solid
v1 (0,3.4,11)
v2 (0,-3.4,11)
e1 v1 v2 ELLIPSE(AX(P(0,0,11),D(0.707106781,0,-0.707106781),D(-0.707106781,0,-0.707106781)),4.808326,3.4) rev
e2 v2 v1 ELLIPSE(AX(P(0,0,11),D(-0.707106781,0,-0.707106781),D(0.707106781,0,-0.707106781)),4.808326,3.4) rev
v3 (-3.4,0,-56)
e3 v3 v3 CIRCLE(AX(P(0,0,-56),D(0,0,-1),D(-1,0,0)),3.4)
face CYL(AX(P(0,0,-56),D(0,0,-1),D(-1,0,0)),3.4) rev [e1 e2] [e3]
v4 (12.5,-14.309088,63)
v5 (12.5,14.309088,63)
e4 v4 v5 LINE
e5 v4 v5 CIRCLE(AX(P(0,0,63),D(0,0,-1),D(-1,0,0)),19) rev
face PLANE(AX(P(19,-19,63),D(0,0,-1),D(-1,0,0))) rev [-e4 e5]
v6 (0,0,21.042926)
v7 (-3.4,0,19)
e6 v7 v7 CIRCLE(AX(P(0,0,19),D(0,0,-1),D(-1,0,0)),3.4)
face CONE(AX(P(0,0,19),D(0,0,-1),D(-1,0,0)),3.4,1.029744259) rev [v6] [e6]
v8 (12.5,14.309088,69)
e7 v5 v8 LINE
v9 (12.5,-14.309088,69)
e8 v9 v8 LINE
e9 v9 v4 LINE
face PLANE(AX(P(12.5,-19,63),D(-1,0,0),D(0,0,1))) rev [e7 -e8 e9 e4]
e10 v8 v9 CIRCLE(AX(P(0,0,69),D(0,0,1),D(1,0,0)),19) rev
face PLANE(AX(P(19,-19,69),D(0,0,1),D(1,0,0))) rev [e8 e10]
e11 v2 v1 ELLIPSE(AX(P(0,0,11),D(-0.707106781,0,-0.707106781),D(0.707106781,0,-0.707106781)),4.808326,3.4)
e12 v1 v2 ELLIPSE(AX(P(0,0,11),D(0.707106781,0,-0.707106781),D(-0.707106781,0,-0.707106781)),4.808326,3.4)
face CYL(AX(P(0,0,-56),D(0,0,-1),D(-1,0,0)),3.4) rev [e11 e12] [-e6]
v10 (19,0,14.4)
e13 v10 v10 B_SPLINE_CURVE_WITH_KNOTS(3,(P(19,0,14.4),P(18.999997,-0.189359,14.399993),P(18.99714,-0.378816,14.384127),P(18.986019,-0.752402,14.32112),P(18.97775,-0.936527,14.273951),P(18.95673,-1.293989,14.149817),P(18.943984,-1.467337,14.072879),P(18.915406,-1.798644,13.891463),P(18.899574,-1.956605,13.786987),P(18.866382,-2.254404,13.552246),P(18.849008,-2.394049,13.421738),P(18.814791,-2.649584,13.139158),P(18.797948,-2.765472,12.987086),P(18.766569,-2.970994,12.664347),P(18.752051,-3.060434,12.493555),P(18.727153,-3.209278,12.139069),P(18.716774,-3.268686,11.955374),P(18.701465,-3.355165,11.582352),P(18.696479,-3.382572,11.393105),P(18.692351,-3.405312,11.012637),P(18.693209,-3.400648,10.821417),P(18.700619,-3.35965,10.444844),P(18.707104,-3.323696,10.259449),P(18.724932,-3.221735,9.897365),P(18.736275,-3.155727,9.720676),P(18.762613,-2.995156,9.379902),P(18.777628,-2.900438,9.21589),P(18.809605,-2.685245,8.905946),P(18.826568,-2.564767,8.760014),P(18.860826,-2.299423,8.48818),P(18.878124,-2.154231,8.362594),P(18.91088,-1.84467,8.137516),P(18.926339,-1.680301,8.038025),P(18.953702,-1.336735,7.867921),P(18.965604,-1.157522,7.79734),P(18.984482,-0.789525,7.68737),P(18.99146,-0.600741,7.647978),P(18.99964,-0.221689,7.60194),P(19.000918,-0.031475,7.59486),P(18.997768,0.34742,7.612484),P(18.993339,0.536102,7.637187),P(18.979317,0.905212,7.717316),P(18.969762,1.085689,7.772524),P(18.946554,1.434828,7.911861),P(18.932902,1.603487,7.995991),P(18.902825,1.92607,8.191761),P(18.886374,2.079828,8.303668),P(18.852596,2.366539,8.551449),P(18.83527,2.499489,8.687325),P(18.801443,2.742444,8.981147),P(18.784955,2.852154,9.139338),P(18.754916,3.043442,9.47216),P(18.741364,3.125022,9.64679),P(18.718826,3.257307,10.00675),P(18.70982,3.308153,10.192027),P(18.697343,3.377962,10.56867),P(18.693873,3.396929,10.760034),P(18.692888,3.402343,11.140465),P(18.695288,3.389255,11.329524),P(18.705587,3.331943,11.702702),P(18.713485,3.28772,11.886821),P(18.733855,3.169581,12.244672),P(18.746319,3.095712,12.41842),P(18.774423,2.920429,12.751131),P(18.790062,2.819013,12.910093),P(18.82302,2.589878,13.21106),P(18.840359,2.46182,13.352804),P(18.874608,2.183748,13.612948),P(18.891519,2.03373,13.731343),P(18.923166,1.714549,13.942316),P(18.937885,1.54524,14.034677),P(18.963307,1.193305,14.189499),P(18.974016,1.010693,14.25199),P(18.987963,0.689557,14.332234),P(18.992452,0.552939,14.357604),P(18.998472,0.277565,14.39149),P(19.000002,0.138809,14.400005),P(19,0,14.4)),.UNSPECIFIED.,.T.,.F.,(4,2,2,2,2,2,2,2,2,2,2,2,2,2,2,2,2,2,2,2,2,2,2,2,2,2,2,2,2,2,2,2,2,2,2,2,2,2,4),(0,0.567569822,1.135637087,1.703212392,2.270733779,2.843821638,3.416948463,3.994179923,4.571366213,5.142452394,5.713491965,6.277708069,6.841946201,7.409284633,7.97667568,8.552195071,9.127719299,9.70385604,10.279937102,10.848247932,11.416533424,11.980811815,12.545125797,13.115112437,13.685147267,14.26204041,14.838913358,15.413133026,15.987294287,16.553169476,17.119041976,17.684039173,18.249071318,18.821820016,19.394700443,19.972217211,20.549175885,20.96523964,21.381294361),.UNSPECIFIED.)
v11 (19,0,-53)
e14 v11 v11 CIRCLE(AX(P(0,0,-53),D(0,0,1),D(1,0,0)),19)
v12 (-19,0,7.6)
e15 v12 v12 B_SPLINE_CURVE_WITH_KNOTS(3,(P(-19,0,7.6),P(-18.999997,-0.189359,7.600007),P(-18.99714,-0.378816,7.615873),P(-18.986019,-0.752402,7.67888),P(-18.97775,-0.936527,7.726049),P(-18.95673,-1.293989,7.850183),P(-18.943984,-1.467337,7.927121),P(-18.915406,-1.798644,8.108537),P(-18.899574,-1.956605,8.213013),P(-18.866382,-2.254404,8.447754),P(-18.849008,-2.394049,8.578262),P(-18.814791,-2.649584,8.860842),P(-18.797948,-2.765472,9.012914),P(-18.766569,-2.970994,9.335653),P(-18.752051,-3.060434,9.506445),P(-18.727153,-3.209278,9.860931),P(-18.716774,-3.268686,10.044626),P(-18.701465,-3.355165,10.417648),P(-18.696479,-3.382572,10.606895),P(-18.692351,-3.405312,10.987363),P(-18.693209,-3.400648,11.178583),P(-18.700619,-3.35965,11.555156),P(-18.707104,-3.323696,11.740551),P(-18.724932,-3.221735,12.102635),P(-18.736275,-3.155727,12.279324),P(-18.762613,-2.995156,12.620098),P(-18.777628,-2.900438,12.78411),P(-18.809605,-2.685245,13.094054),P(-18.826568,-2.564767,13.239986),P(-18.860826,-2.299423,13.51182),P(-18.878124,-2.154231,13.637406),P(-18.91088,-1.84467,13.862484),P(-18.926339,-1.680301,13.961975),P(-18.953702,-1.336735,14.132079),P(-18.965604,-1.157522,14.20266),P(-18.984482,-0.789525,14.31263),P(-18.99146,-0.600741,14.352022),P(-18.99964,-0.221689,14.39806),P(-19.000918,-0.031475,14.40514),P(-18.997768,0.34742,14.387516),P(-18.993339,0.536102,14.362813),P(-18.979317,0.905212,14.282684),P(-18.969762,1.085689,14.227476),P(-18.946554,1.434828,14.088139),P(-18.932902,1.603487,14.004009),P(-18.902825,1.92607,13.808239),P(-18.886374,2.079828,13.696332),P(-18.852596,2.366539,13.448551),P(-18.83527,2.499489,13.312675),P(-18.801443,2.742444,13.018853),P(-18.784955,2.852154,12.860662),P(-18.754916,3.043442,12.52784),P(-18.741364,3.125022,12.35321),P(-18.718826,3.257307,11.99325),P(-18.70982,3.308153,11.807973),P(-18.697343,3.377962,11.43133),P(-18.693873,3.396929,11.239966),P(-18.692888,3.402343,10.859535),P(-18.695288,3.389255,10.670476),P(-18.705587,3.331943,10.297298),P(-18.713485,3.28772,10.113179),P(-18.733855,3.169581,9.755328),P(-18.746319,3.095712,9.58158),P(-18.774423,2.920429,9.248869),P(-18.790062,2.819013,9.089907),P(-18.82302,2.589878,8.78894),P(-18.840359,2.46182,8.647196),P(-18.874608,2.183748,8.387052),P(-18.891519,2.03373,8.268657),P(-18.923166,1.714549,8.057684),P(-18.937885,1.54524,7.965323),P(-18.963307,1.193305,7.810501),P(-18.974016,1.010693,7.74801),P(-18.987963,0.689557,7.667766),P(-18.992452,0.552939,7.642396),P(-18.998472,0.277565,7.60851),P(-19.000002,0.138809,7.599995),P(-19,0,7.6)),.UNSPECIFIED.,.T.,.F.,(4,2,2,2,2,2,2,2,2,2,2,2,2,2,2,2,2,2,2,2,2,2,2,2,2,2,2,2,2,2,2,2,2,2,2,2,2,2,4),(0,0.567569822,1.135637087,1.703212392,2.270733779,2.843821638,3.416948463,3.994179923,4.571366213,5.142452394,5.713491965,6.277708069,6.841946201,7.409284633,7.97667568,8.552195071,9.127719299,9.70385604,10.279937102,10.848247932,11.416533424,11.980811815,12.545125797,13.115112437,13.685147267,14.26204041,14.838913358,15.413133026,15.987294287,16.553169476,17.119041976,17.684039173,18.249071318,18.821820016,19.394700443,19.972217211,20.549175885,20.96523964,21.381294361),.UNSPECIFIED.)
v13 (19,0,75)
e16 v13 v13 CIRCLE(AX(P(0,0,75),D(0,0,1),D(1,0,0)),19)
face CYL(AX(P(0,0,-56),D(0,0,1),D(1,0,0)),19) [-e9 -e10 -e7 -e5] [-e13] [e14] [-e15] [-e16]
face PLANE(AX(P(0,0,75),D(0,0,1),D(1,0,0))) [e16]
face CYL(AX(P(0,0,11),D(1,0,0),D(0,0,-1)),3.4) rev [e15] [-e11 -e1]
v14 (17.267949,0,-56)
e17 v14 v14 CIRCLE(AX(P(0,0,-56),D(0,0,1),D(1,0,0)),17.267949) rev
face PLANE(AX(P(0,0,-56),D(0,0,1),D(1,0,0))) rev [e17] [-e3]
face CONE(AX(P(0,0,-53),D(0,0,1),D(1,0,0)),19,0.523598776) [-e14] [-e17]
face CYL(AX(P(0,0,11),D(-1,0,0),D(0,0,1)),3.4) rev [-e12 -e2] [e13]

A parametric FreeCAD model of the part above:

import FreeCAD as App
import Part
import Sketcher
from FreeCAD import Vector


def edges_at(feature, points):
    """Names of the edges that pass closest to the given points."""
    edges = feature.Shape.Edges
    near = lambda p: min(range(len(edges)), key=lambda i: edges[i].distToShape(Part.Vertex(*p))[0])
    return sorted({f"Edge{near(p) + 1}" for p in points})

doc = App.newDocument("Part")
params = doc.addObject("Spreadsheet::Sheet", "Params")
for row, (alias, value) in enumerate([
    ("sketch1_diameter", "38 mm"),
    ("pad1_length", "75 mm"),
    ("pad1_length2", "56 mm"),
    ("sketch2_diameter", "6.8 mm"),
    ("hole_diameter", "6.8 mm"),
    ("hole_depth", "75 mm"),
    ("sketch3_width", "19 mm"),
    ("sketch3_height", "3.4 mm"),
    ("groove_angle", "360 deg"),
    ("chamfer_size", "3 mm"),
    ("chamfer_size2", "1.732051 mm"),
    ("sketch4_height", "6 mm"),
    ("sketch4_width", "6.5 mm"),
], start=1):
    params.set(f"A{row}", alias)
    params.set(f"B{row}", "=" + value)
    params.setAlias(f"B{row}", alias)

body = doc.addObject("PartDesign::Body", "Body")

# Sketch on XY plane
sketch1 = body.newObject("Sketcher::SketchObject", "Sketch")
sketch1.AttachmentSupport = (doc.getObject("XY_Plane"), [""])
sketch1.MapMode = "FlatFace"
sketch1.addGeometry(Part.Circle(Vector(0, 0, 0), Vector(0, 0, 1), 19), False)
sketch1.addConstraint([
    Sketcher.Constraint("Coincident", 0, 3, -1, 1),
    Sketcher.Constraint("Diameter", 0, 38.0),
])
sketch1.setExpression("Constraints[1]", "Params.sketch1_diameter")
pad1 = body.newObject("PartDesign::Pad", "Pad")
pad1.Profile = sketch1
pad1.Type = "TwoLengths"
pad1.setExpression("Length", "Params.pad1_length")
pad1.setExpression("Length2", "Params.pad1_length2")

# Sketch on XY plane
sketch2 = body.newObject("Sketcher::SketchObject", "Sketch001")
sketch2.AttachmentSupport = (doc.getObject("XY_Plane"), [""])
sketch2.MapMode = "FlatFace"
sketch2.AttachmentOffset = App.Placement(Vector(0, 0, -56), App.Rotation())
sketch2.addGeometry(Part.Circle(Vector(0, 0, 0), Vector(0, 0, 1), 3.4), False)
sketch2.addConstraint([
    Sketcher.Constraint("Coincident", 0, 3, -1, 1),
    Sketcher.Constraint("Diameter", 0, 6.8),
])
sketch2.setExpression("Constraints[1]", "Params.sketch2_diameter")
doc.recompute()
hole = body.newObject("PartDesign::Hole", "Hole")
hole.Profile = sketch2
hole.ThreadType = "None"
hole.setExpression("Diameter", "Params.hole_diameter")
hole.DepthType = "Dimension"
hole.setExpression("Depth", "Params.hole_depth")
hole.DrillPoint = "Angled"
hole.DrillPointAngle = 118
hole.Reversed = True

# Sketch on XZ plane
sketch3 = body.newObject("Sketcher::SketchObject", "Sketch002")
sketch3.AttachmentSupport = (doc.getObject("XZ_Plane"), [""])
sketch3.MapMode = "FlatFace"
sketch3.addGeometry([
    Part.LineSegment(Vector(19, 11, 0), Vector(0, 11, 0)),
    Part.LineSegment(Vector(0, 11, 0), Vector(0, 14.4, 0)),
    Part.LineSegment(Vector(0, 14.4, 0), Vector(19, 14.4, 0)),
    Part.LineSegment(Vector(19, 14.4, 0), Vector(19, 11, 0)),
], False)
sketch3.addGeometry(Part.LineSegment(Vector(0, 11, 0), Vector(19, 11, 0)), True)  # axis
sketch3.addConstraint([
    Sketcher.Constraint("Coincident", 0, 2, 1, 1),
    Sketcher.Constraint("Coincident", 1, 2, 2, 1),
    Sketcher.Constraint("Coincident", 2, 2, 3, 1),
    Sketcher.Constraint("Coincident", 3, 2, 0, 1),
    Sketcher.Constraint("Horizontal", 0),
    Sketcher.Constraint("Vertical", 1),
    Sketcher.Constraint("Horizontal", 2),
    Sketcher.Constraint("Vertical", 3),
    Sketcher.Constraint("Horizontal", 4),
    Sketcher.Constraint("Coincident", 4, 1, 0, 2),
    Sketcher.Constraint("PointOnObject", 0, 2, -2),
    Sketcher.Constraint("Vertical", 2, 2, 4, 2),
    Sketcher.Constraint("DistanceX", 0, 2, 0, 1, 19.0),
    Sketcher.Constraint("DistanceY", 1, 1, 1, 2, 3.4),
    Sketcher.Constraint("DistanceY", -1, 1, 0, 2, 11.0),
])
sketch3.setExpression("Constraints[12]", "Params.sketch3_width")
sketch3.setExpression("Constraints[13]", "Params.sketch3_height")
groove = body.newObject("PartDesign::Groove", "Groove")
groove.Profile = sketch3
groove.ReferenceAxis = (sketch3, ["Axis0"])
groove.setExpression("Angle", "Params.groove_angle")
doc.recompute()

mirrored = body.newObject("PartDesign::Mirrored", "Mirrored")
mirrored.Originals = [groove]
mirrored.MirrorPlane = (doc.getObject("YZ_Plane"), [""])
body.Tip = mirrored
doc.recompute()

chamfer = body.newObject("PartDesign::Chamfer", "Chamfer")
chamfer.Base = (mirrored, edges_at(mirrored, [(-19, 0, -56)]))
chamfer.ChamferType = "Two distances"
chamfer.setExpression("Size", "Params.chamfer_size")
chamfer.setExpression("Size2", "Params.chamfer_size2")

# Sketch on XZ plane
sketch4 = body.newObject("Sketcher::SketchObject", "Sketch003")
sketch4.AttachmentSupport = (doc.getObject("XZ_Plane"), [""])
sketch4.MapMode = "FlatFace"
sketch4.addGeometry([
    Part.LineSegment(Vector(12.5, 63, 0), Vector(12.5, 69, 0)),
    Part.LineSegment(Vector(12.5, 69, 0), Vector(19, 69, 0)),
    Part.LineSegment(Vector(19, 69, 0), Vector(19, 63, 0)),
    Part.LineSegment(Vector(19, 63, 0), Vector(12.5, 63, 0)),
], False)
sketch4.addConstraint([
    Sketcher.Constraint("Coincident", 0, 2, 1, 1),
    Sketcher.Constraint("Coincident", 1, 2, 2, 1),
    Sketcher.Constraint("Coincident", 2, 2, 3, 1),
    Sketcher.Constraint("Coincident", 3, 2, 0, 1),
    Sketcher.Constraint("Vertical", 0),
    Sketcher.Constraint("Horizontal", 1),
    Sketcher.Constraint("Vertical", 2),
    Sketcher.Constraint("Horizontal", 3),
    Sketcher.Constraint("DistanceY", 0, 1, 0, 2, 6.0),
    Sketcher.Constraint("DistanceX", 1, 1, 1, 2, 6.5),
    Sketcher.Constraint("DistanceY", -1, 1, 0, 2, 69.0),
    Sketcher.Constraint("DistanceX", -1, 1, 1, 2, 19.0),
])
sketch4.setExpression("Constraints[8]", "Params.sketch4_height")
sketch4.setExpression("Constraints[9]", "Params.sketch4_width")
pocket1 = body.newObject("PartDesign::Pocket", "Pocket")
pocket1.Profile = sketch4
pocket1.Type = "ThroughAll"
pocket1.Midplane = True

doc.recompute()
